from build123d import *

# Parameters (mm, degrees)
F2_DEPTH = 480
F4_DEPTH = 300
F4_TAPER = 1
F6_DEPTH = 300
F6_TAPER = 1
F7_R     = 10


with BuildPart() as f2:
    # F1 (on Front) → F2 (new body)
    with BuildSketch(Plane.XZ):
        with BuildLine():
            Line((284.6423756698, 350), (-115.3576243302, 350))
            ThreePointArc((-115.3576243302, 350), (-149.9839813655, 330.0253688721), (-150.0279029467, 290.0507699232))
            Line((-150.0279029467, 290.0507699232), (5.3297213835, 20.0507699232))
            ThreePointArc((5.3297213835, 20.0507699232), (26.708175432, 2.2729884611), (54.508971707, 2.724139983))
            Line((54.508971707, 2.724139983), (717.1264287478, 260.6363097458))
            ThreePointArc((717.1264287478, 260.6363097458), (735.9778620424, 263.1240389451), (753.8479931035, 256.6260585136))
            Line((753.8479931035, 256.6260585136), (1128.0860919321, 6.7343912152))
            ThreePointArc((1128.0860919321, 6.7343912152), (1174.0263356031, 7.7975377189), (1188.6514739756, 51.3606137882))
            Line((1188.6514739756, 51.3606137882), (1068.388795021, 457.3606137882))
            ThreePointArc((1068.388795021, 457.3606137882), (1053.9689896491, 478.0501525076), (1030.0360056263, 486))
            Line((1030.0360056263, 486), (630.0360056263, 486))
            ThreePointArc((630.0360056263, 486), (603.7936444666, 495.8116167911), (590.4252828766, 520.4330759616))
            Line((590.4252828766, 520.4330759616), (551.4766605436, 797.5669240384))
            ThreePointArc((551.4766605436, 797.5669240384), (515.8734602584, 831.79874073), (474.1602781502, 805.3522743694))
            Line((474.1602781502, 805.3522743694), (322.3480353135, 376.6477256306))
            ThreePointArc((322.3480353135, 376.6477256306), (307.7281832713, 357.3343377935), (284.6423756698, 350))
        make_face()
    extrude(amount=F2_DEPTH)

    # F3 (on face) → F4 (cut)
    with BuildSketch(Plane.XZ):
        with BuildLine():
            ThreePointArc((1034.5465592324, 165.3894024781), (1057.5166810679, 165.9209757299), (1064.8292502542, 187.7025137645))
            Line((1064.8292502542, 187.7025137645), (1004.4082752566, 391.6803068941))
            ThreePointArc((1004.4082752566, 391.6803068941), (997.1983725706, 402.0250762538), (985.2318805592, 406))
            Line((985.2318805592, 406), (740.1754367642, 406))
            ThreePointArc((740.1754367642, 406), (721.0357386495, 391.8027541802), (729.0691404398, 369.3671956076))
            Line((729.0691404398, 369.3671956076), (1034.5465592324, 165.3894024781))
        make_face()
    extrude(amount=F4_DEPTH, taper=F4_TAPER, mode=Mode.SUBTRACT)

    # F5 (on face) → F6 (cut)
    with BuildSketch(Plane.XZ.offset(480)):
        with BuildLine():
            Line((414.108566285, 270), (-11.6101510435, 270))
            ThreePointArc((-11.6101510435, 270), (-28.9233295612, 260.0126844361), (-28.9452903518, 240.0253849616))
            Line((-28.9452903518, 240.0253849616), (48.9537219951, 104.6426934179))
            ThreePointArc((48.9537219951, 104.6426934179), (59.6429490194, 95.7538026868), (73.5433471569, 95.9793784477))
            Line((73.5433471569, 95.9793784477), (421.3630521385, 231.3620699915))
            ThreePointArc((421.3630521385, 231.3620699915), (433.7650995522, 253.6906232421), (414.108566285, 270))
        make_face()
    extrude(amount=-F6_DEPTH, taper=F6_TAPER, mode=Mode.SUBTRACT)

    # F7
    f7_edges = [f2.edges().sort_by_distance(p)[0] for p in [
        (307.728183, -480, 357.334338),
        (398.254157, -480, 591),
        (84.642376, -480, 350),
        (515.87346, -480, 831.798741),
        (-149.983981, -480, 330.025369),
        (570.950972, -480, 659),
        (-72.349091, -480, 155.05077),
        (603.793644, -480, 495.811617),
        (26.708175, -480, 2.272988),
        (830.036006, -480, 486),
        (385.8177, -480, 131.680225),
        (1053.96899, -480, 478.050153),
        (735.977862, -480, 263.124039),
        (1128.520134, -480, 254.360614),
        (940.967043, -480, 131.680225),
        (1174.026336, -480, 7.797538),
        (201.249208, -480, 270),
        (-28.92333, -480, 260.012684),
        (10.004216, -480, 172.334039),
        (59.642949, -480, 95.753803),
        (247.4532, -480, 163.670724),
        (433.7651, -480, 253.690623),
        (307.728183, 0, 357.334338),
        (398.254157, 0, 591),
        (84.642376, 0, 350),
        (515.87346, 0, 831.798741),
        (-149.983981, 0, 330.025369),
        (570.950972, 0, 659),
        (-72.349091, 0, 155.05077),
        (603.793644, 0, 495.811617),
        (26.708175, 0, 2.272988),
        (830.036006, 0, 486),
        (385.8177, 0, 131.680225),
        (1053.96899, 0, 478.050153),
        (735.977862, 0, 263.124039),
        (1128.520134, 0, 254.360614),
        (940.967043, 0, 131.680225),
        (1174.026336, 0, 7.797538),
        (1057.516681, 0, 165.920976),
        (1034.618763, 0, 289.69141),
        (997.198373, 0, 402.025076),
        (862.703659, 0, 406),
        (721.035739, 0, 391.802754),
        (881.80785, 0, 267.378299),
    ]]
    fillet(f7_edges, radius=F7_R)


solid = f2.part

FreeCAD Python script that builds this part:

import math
import FreeCAD as App
import Part
import Sketcher
Q = App.Units.Quantity


def edges_at(feature, points):
    """Names of the edges that pass closest to the given points."""
    edges = feature.Shape.Edges
    near = lambda p: min(range(len(edges)), key=lambda i: edges[i].distToShape(Part.Vertex(*p))[0])
    return sorted({f"Edge{near(p) + 1}" for p in points})

doc = App.newDocument("Part")
body = doc.addObject("PartDesign::Body", "Body")

# Sketch on XZ plane
sketch1 = body.newObject("Sketcher::SketchObject", "Sketch")
sketch1.AttachmentSupport = (doc.getObject("XZ_Plane"), [""])
sketch1.MapMode = "FlatFace"
sketch1.addGeometry([
    Part.LineSegment(App.Vector(285, 350, 0), App.Vector(-115, 350, 0)),  # 0
    Part.ArcOfCircle(Part.Circle(App.Vector(-115, 310, 0), App.Vector(0, 0, 1), 40), math.radians(90), math.radians(210)),  # 1
    Part.LineSegment(App.Vector(-150, 290, 0), App.Vector(5, 20, 0)),  # 2
    Part.ArcOfCircle(Part.Circle(App.Vector(40, 40, 0), App.Vector(0, 0, 1), 40), math.radians(-150), math.radians(-69)),  # 3
    Part.LineSegment(App.Vector(55, 3, 0), App.Vector(717, 261, 0)),  # 4
    Part.ArcOfCircle(Part.Circle(App.Vector(732, 223, 0), App.Vector(0, 0, 1), 40), math.radians(56), math.radians(111)),  # 5
    Part.LineSegment(App.Vector(754, 257, 0), App.Vector(1128, 7, 0)),  # 6
    Part.ArcOfCircle(Part.Circle(App.Vector(1150, 40, 0), App.Vector(0, 0, 1), 40), math.radians(-124), math.radians(16)),  # 7
    Part.LineSegment(App.Vector(1189, 51, 0), App.Vector(1068, 457, 0)),  # 8
    Part.ArcOfCircle(Part.Circle(App.Vector(1030, 446, 0), App.Vector(0, 0, 1), 40), math.radians(16), math.radians(90)),  # 9
    Part.LineSegment(App.Vector(1030, 486, 0), App.Vector(630, 486, 0)),  # 10
    Part.ArcOfCircle(Part.Circle(App.Vector(630, 526, 0), App.Vector(0, 0, 1), 40), math.radians(-172), math.radians(-90)),  # 11
    Part.LineSegment(App.Vector(590, 520, 0), App.Vector(551, 798, 0)),  # 12
    Part.ArcOfCircle(Part.Circle(App.Vector(512, 792, 0), App.Vector(0, 0, 1), 40), math.radians(8), math.radians(161)),  # 13
    Part.LineSegment(App.Vector(474, 805, 0), App.Vector(322, 377, 0)),  # 14
    Part.ArcOfCircle(Part.Circle(App.Vector(285, 390, 0), App.Vector(0, 0, 1), 40), math.radians(-90), math.radians(-19)),  # 15
], False)
sketch1.addConstraint([
    Sketcher.Constraint("Tangent", 0, 2, 1, 1),
    Sketcher.Constraint("Tangent", 1, 2, 2, 1),
    Sketcher.Constraint("Tangent", 2, 2, 3, 1),
    Sketcher.Constraint("Tangent", 3, 2, 4, 1),
    Sketcher.Constraint("Tangent", 4, 2, 5, 2),
    Sketcher.Constraint("Tangent", 5, 1, 6, 1),
    Sketcher.Constraint("Tangent", 6, 2, 7, 1),
    Sketcher.Constraint("Tangent", 7, 2, 8, 1),
    Sketcher.Constraint("Tangent", 8, 2, 9, 1),
    Sketcher.Constraint("Tangent", 9, 2, 10, 1),
    Sketcher.Constraint("Tangent", 10, 2, 11, 2),
    Sketcher.Constraint("Tangent", 11, 1, 12, 1),
    Sketcher.Constraint("Tangent", 12, 2, 13, 1),
    Sketcher.Constraint("Tangent", 13, 2, 14, 1),
    Sketcher.Constraint("Tangent", 14, 2, 15, 2),
    Sketcher.Constraint("Tangent", 15, 1, 0, 1),
    Sketcher.Constraint("Horizontal", 0),
    Sketcher.Constraint("Horizontal", 10),
    Sketcher.Constraint("Equal", 1, 3),
    Sketcher.Constraint("Equal", 3, 5),
    Sketcher.Constraint("Equal", 5, 7),
    Sketcher.Constraint("Equal", 7, 9),
    Sketcher.Constraint("Equal", 9, 11),
    Sketcher.Constraint("Equal", 11, 13),
    Sketcher.Constraint("Equal", 13, 15),
    Sketcher.Constraint("Horizontal", 3, 3, 7, 3),
    Sketcher.Constraint("Equal", 0, 10),
    Sketcher.Constraint("Radius", 1, Q("40 mm")),
    Sketcher.Constraint("DistanceX", 0, 2, 0, 1, Q("400 mm")),
    Sketcher.Constraint("Angle", 12, Q("98 deg")),
    Sketcher.Constraint("Distance", 6, Q("450 mm")),
    Sketcher.Constraint("DistanceY", -1, 1, 1, 3, Q("310 mm")),
    Sketcher.Constraint("DistanceX", -1, 1, 3, 3, Q("40 mm")),
    Sketcher.Constraint("DistanceY", -1, 1, 3, 3, Q("40 mm")),
    Sketcher.Constraint("DistanceY", -1, 1, 9, 3, Q("446 mm")),
    Sketcher.Constraint("DistanceY", -1, 1, 13, 3, Q("792 mm")),
    Sketcher.Constraint("Angle", 8, Q("106.5 deg")),
    Sketcher.Constraint("Angle", 14, Q("-109.5 deg")),
    Sketcher.Constraint("Distance", 4, Q("711.041899 mm")),
    Sketcher.Constraint("DistanceX", -1, 1, 5, 3, Q("731.6354 mm")),
])
pad1 = body.newObject("PartDesign::Pad", "Pad")
pad1.Profile = sketch1
pad1.Length = 480

# Sketch on XZ plane
sketch2 = body.newObject("Sketcher::SketchObject", "Sketch001")
sketch2.AttachmentSupport = (doc.getObject("XZ_Plane"), [""])
sketch2.MapMode = "FlatFace"
sketch2.addGeometry([
    Part.ArcOfCircle(Part.Circle(App.Vector(1046, 182, 0), App.Vector(0, 0, 1), 20), math.radians(-124), math.radians(17)),  # 0
    Part.LineSegment(App.Vector(1065, 188, 0), App.Vector(1004, 392, 0)),  # 1
    Part.ArcOfCircle(Part.Circle(App.Vector(985, 386, 0), App.Vector(0, 0, 1), 20), math.radians(16), math.radians(90)),  # 2
    Part.LineSegment(App.Vector(985, 406, 0), App.Vector(740, 406, 0)),  # 3
    Part.ArcOfCircle(Part.Circle(App.Vector(740, 386, 0), App.Vector(0, 0, 1), 20), math.radians(90), math.radians(236)),  # 4
    Part.LineSegment(App.Vector(729, 369, 0), App.Vector(1035, 165, 0)),  # 5
], False)
sketch2.addConstraint([
    Sketcher.Constraint("Tangent", 0, 2, 1, 1),
    Sketcher.Constraint("Tangent", 1, 2, 2, 1),
    Sketcher.Constraint("Tangent", 2, 2, 3, 1),
    Sketcher.Constraint("Tangent", 3, 2, 4, 1),
    Sketcher.Constraint("Tangent", 4, 2, 5, 1),
    Sketcher.Constraint("Tangent", 5, 2, 0, 1),
    Sketcher.Constraint("Horizontal", 3),
    Sketcher.Constraint("Equal", 0, 2),
    Sketcher.Constraint("Equal", 2, 4),
    Sketcher.Constraint("Radius", 0, Q("20 mm")),
    Sketcher.Constraint("DistanceY", -1, 1, 2, 3, Q("386 mm")),
    Sketcher.Constraint("Angle", 1, Q("106.5 deg")),
    Sketcher.Constraint("Distance", 5, Q("367.319198 mm")),
    Sketcher.Constraint("DistanceY", 0, 3, 1, 2, Q("209.6581 mm")),
    Sketcher.Constraint("DistanceX", -1, 1, 2, 3, Q("985.231881 mm")),
])
pocket1 = body.newObject("PartDesign::Pocket", "Pocket")
pocket1.Profile = sketch2
pocket1.Length = 300
pocket1.Reversed = True
pocket1.TaperAngle = -1

# Sketch on XZ plane
sketch3 = body.newObject("Sketcher::SketchObject", "Sketch002")
sketch3.AttachmentSupport = (doc.getObject("XZ_Plane"), [""])
sketch3.MapMode = "FlatFace"
sketch3.AttachmentOffset = App.Placement(App.Vector(0, 0, 480), App.Rotation())
sketch3.addGeometry([
    Part.LineSegment(App.Vector(414, 270, 0), App.Vector(-12, 270, 0)),  # 0
    Part.ArcOfCircle(Part.Circle(App.Vector(-12, 250, 0), App.Vector(0, 0, 1), 20), math.radians(90), math.radians(210)),  # 1
    Part.LineSegment(App.Vector(-29, 240, 0), App.Vector(49, 105, 0)),  # 2
    Part.ArcOfCircle(Part.Circle(App.Vector(66, 115, 0), App.Vector(0, 0, 1), 20), math.radians(-150), math.radians(-69)),  # 3
    Part.LineSegment(App.Vector(74, 96, 0), App.Vector(421, 231, 0)),  # 4
    Part.ArcOfCircle(Part.Circle(App.Vector(414, 250, 0), App.Vector(0, 0, 1), 20), math.radians(-69), math.radians(90)),  # 5
], False)
sketch3.addConstraint([
    Sketcher.Constraint("Tangent", 0, 2, 1, 1),
    Sketcher.Constraint("Tangent", 1, 2, 2, 1),
    Sketcher.Constraint("Tangent", 2, 2, 3, 1),
    Sketcher.Constraint("Tangent", 3, 2, 4, 1),
    Sketcher.Constraint("Tangent", 4, 2, 5, 1),
    Sketcher.Constraint("Tangent", 5, 2, 0, 1),
    Sketcher.Constraint("Horizontal", 0),
    Sketcher.Constraint("Equal", 1, 3),
    Sketcher.Constraint("Equal", 3, 5),
    Sketcher.Constraint("Radius", 1, Q("20 mm")),
    Sketcher.Constraint("DistanceY", -1, 1, 1, 3, Q("250 mm")),
    Sketcher.Constraint("DistanceX", 1, 3, 3, 2, Q("85.153498 mm")),
    Sketcher.Constraint("DistanceX", 0, 2, 0, 1, Q("425.718717 mm")),
    Sketcher.Constraint("DistanceX", 1, 3, -1, 1, Q("11.610151 mm")),
    Sketcher.Constraint("DistanceX", -1, 1, 3, 3, Q("66.288861 mm")),
])
pocket2 = body.newObject("PartDesign::Pocket", "Pocket001")
pocket2.Profile = sketch3
pocket2.Length = 300
pocket2.TaperAngle = -1
doc.recompute()

fillet = body.newObject("PartDesign::Fillet", "Fillet")
fillet.Base = (pocket2, edges_at(pocket2, [
    (307.728, -480, 357.334),
    (398.254, -480, 591),
    (84.642, -480, 350),
    (515.873, -480, 831.799),
    (-149.984, -480, 330.025),
    (570.951, -480, 659),
    (-72.349, -480, 155.051),
    (603.794, -480, 495.812),
    (26.708, -480, 2.273),
    (830.036, -480, 486),
    (385.818, -480, 131.68),
    (1053.969, -480, 478.05),
    (735.978, -480, 263.124),
    (1128.52, -480, 254.361),
    (940.967, -480, 131.68),
    (1174.026, -480, 7.798),
    (201.249, -480, 270),
    (-28.923, -480, 260.013),
    (10.004, -480, 172.334),
    (59.643, -480, 95.754),
    (247.453, -480, 163.671),
    (433.765, -480, 253.691),
    (307.728, 0, 357.334),
    (398.254, 0, 591),
    (84.642, 0, 350),
    (515.873, 0, 831.799),
    (-149.984, 0, 330.025),
    (570.951, 0, 659),
    (-72.349, 0, 155.051),
    (603.794, 0, 495.812),
    (26.708, 0, 2.273),
    (830.036, 0, 486),
    (385.818, 0, 131.68),
    (1053.969, 0, 478.05),
    (735.978, 0, 263.124),
    (1128.52, 0, 254.361),
    (940.967, 0, 131.68),
    (1174.026, 0, 7.798),
    (1057.517, 0, 165.921),
    (1034.619, 0, 289.691),
    (997.198, 0, 402.025),
    (862.704, 0, 406),
    (721.036, 0, 391.803),
    (881.808, 0, 267.378),
]))
fillet.Radius = 10

doc.recompute()
